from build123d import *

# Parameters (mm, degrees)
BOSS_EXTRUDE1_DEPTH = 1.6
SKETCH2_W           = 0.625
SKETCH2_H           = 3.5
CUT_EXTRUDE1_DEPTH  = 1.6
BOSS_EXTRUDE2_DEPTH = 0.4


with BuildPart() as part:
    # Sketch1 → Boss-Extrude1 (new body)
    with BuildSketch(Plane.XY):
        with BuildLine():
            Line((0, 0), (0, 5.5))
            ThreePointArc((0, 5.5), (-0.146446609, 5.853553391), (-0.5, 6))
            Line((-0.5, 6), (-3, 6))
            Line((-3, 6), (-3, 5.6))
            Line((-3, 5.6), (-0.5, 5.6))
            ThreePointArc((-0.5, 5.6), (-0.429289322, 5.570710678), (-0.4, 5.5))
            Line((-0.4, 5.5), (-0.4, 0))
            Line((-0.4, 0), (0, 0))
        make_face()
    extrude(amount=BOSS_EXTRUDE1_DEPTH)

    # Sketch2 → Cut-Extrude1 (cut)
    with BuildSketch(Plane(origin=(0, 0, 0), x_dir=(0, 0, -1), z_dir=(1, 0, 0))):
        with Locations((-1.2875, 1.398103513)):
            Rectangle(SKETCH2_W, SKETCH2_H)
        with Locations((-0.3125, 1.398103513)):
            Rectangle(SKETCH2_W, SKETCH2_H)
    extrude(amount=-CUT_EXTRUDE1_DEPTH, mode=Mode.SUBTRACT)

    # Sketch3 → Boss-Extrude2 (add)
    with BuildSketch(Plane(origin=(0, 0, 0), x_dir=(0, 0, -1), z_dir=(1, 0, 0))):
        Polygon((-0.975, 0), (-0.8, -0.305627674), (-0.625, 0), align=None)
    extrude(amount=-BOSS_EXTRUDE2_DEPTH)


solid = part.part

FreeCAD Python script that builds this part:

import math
import FreeCAD as App
import Part
import Sketcher

V = App.Vector
Q = App.Units.Quantity

doc = App.newDocument("Part")
params = doc.addObject("Spreadsheet::Sheet", "Params")
for row, (alias, value) in enumerate([
    ("sketch1_radius", "0.5 mm"),
    ("sketch1_radius2", "0.1 mm"),
    ("sketch1_width", "2.5 mm"),
    ("sketch1_height", "5.5 mm"),
    ("pad1_length", "1.6 mm"),
    ("sketch2_width", "3.5 mm"),
    ("pocket1_length", "1.6 mm"),
    ("sketch3_height", "0.35 mm"),
    ("pad2_length", "0.4 mm"),
], start=1):
    params.set(f"A{row}", alias)
    params.set(f"B{row}", "=" + value)
    params.setAlias(f"B{row}", alias)

body = doc.addObject("PartDesign::Body", "Body")

sketch1 = body.newObject("Sketcher::SketchObject", "Sketch")
sketch1.AttachmentSupport = (doc.getObject("XY_Plane"), [""])
sketch1.MapMode = "FlatFace"
sketch1.addGeometry([
    Part.LineSegment(V(0, 0, 0), V(0, 5.5, 0)),
    Part.ArcOfCircle(Part.Circle(V(-0.5, 5.5, 0), V(0, 0, 1), 0.5), math.radians(0), math.radians(90)),
    Part.LineSegment(V(-0.5, 6, 0), V(-3, 6, 0)),
    Part.LineSegment(V(-3, 6, 0), V(-3, 5.6, 0)),
    Part.LineSegment(V(-3, 5.6, 0), V(-0.5, 5.6, 0)),
    Part.ArcOfCircle(Part.Circle(V(-0.5, 5.5, 0), V(0, 0, 1), 0.1), math.radians(0), math.radians(90)),
    Part.LineSegment(V(-0.4, 5.5, 0), V(-0.4, 0, 0)),
    Part.LineSegment(V(-0.4, 0, 0), V(0, 0, 0)),
], False)
sketch1.addConstraint([
    Sketcher.Constraint("Tangent", 0, 2, 1, 1),
    Sketcher.Constraint("Tangent", 1, 2, 2, 1),
    Sketcher.Constraint("Coincident", 2, 2, 3, 1),
    Sketcher.Constraint("Coincident", 3, 2, 4, 1),
    Sketcher.Constraint("Tangent", 4, 2, 5, 2),
    Sketcher.Constraint("Tangent", 5, 1, 6, 1),
    Sketcher.Constraint("Coincident", 6, 2, 7, 1),
    Sketcher.Constraint("Coincident", 7, 2, 0, 1),
    Sketcher.Constraint("Vertical", 0),
    Sketcher.Constraint("Horizontal", 2),
    Sketcher.Constraint("Vertical", 3),
    Sketcher.Constraint("Horizontal", 4),
    Sketcher.Constraint("Vertical", 6),
    Sketcher.Constraint("Horizontal", 7),
    Sketcher.Constraint("Coincident", 7, 2, -1, 1),
    Sketcher.Constraint("Coincident", 5, 3, 1, 3),
    Sketcher.Constraint("Radius", 1, Q("0.5 mm")),
    Sketcher.Constraint("Radius", 5, Q("0.1 mm")),
    Sketcher.Constraint("DistanceX", 2, 2, 2, 1, Q("2.5 mm")),
    Sketcher.Constraint("DistanceY", 0, 1, 0, 2, Q("5.5 mm")),
])
sketch1.setExpression("Constraints[16]", "Params.sketch1_radius")
sketch1.setExpression("Constraints[17]", "Params.sketch1_radius2")
sketch1.setExpression("Constraints[18]", "Params.sketch1_width")
sketch1.setExpression("Constraints[19]", "Params.sketch1_height")
pad1 = body.newObject("PartDesign::Pad", "Pad")
pad1.Profile = sketch1
pad1.setExpression("Length", "Params.pad1_length")

sketch2 = body.newObject("Sketcher::SketchObject", "Sketch001")
sketch2.AttachmentSupport = (doc.getObject("YZ_Plane"), [""])
sketch2.MapMode = "FlatFace"
sketch2.addGeometry([
    Part.LineSegment(V(3.1, 1.6, 0), V(-0.4, 1.6, 0)),
    Part.LineSegment(V(-0.4, 1.6, 0), V(-0.4, 1, 0)),
    Part.LineSegment(V(-0.4, 1, 0), V(3.1, 1, 0)),
    Part.LineSegment(V(3.1, 1, 0), V(3.1, 1.6, 0)),
    Part.LineSegment(V(3.1, 0.6, 0), V(-0.4, 0.6, 0)),
    Part.LineSegment(V(-0.4, 0.6, 0), V(-0.4, 0, 0)),
    Part.LineSegment(V(-0.4, 0, 0), V(3.1, 0, 0)),
    Part.LineSegment(V(3.1, 0, 0), V(3.1, 0.6, 0)),
], False)
sketch2.addConstraint([
    Sketcher.Constraint("Coincident", 0, 2, 1, 1),
    Sketcher.Constraint("Coincident", 1, 2, 2, 1),
    Sketcher.Constraint("Coincident", 2, 2, 3, 1),
    Sketcher.Constraint("Coincident", 3, 2, 0, 1),
    Sketcher.Constraint("Coincident", 4, 2, 5, 1),
    Sketcher.Constraint("Coincident", 5, 2, 6, 1),
    Sketcher.Constraint("Coincident", 6, 2, 7, 1),
    Sketcher.Constraint("Coincident", 7, 2, 4, 1),
    Sketcher.Constraint("Horizontal", 0),
    Sketcher.Constraint("Vertical", 1),
    Sketcher.Constraint("Horizontal", 2),
    Sketcher.Constraint("Vertical", 3),
    Sketcher.Constraint("Horizontal", 4),
    Sketcher.Constraint("Vertical", 5),
    Sketcher.Constraint("Horizontal", 6),
    Sketcher.Constraint("Vertical", 7),
    Sketcher.Constraint("PointOnObject", 5, 2, -1),
    Sketcher.Constraint("Vertical", 1, 2, 4, 2),
    Sketcher.Constraint("Vertical", 3, 2, 6, 2),
    Sketcher.Constraint("Equal", 3, 5),
    Sketcher.Constraint("DistanceX", 0, 2, 0, 1, Q("3.5 mm")),
    Sketcher.Constraint("DistanceY", -1, 1, 0, 2, Q("1.6 mm")),
    Sketcher.Constraint("DistanceY", 1, 2, 1, 1, Q("0.625 mm")),
    Sketcher.Constraint("DistanceX", 0, 2, -1, 1, Q("0.351896 mm")),
])
sketch2.setExpression("Constraints[20]", "Params.sketch2_width")
pocket1 = body.newObject("PartDesign::Pocket", "Pocket")
pocket1.Profile = sketch2
pocket1.setExpression("Length", "Params.pocket1_length")

sketch3 = body.newObject("Sketcher::SketchObject", "Sketch002")
sketch3.AttachmentSupport = (doc.getObject("YZ_Plane"), [""])
sketch3.MapMode = "FlatFace"
sketch3.addGeometry([
    Part.LineSegment(V(0, 0.97, 0), V(-0.31, 0.8, 0)),
    Part.LineSegment(V(-0.31, 0.8, 0), V(0, 0.62, 0)),
    Part.LineSegment(V(0, 0.62, 0), V(0, 0.97, 0)),
], False)
sketch3.addConstraint([
    Sketcher.Constraint("Coincident", 0, 2, 1, 1),
    Sketcher.Constraint("Coincident", 1, 2, 2, 1),
    Sketcher.Constraint("Coincident", 2, 2, 0, 1),
    Sketcher.Constraint("Vertical", 2),
    Sketcher.Constraint("PointOnObject", 1, 2, -2),
    Sketcher.Constraint("Equal", 0, 1),
    Sketcher.Constraint("DistanceY", 2, 1, 2, 2, Q("0.35 mm")),
    Sketcher.Constraint("DistanceY", -1, 1, 0, 2, Q("0.8 mm")),
    Sketcher.Constraint("Distance", 0, Q("0.352184 mm")),
])
sketch3.setExpression("Constraints[6]", "Params.sketch3_height")
pad2 = body.newObject("PartDesign::Pad", "Pad001")
pad2.Profile = sketch3
pad2.setExpression("Length", "Params.pad2_length")
pad2.Reversed = True

doc.recompute()
